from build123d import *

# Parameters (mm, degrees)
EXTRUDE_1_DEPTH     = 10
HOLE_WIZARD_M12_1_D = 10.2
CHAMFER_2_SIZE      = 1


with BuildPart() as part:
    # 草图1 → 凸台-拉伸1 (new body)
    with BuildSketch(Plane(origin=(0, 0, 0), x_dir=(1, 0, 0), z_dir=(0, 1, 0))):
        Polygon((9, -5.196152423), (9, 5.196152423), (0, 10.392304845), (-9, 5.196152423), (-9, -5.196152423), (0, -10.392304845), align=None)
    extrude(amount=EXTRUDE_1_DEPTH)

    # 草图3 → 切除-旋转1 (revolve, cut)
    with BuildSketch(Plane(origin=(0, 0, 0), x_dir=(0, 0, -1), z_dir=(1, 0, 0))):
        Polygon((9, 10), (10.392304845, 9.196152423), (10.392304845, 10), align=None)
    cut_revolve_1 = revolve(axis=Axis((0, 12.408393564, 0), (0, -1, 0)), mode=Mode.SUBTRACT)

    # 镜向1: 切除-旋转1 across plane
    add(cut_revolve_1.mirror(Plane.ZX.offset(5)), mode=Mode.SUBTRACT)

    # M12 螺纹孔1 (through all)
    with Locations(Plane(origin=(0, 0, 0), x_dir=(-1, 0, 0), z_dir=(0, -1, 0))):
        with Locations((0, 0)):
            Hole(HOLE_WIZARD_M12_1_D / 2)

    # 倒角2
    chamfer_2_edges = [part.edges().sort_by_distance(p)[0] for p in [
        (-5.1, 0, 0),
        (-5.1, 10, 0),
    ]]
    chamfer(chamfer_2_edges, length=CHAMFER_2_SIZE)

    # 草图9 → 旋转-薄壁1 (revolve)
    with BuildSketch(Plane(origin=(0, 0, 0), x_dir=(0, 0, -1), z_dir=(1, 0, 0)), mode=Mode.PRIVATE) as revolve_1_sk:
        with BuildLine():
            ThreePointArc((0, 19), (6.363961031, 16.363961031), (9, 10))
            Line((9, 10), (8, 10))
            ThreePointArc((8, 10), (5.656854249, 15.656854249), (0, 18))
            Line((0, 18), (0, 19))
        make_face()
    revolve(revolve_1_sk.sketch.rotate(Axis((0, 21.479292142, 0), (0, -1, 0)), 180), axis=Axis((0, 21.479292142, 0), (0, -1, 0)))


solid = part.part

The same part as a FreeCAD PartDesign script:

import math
import FreeCAD as App
import Part
import Sketcher

V = App.Vector
Q = App.Units.Quantity


def edges_at(feature, points):
    """Names of the edges that pass closest to the given points."""
    edges = feature.Shape.Edges
    near = lambda p: min(range(len(edges)), key=lambda i: edges[i].distToShape(Part.Vertex(*p))[0])
    return sorted({f"Edge{near(p) + 1}" for p in points})

doc = App.newDocument("Part")
body = doc.addObject("PartDesign::Body", "Body")

# Sketch on XZ plane
sketch1 = body.newObject("Sketcher::SketchObject", "Sketch")
sketch1.AttachmentSupport = (doc.getObject("XZ_Plane"), [""])
sketch1.MapMode = "FlatFace"
sketch1.addGeometry([
    Part.LineSegment(V(9, 5, 0), V(9, -5, 0)),  # 0
    Part.LineSegment(V(9, -5, 0), V(0, -10, 0)),  # 1
    Part.LineSegment(V(0, -10, 0), V(-9, -5, 0)),  # 2
    Part.LineSegment(V(-9, -5, 0), V(-9, 5, 0)),  # 3
    Part.LineSegment(V(-9, 5, 0), V(0, 10, 0)),  # 4
    Part.LineSegment(V(0, 10, 0), V(9, 5, 0)),  # 5
], False)
sketch1.addConstraint([
    Sketcher.Constraint("Coincident", 0, 2, 1, 1),
    Sketcher.Constraint("Coincident", 1, 2, 2, 1),
    Sketcher.Constraint("Coincident", 2, 2, 3, 1),
    Sketcher.Constraint("Coincident", 3, 2, 4, 1),
    Sketcher.Constraint("Coincident", 4, 2, 5, 1),
    Sketcher.Constraint("Coincident", 5, 2, 0, 1),
    Sketcher.Constraint("Vertical", 0),
    Sketcher.Constraint("Vertical", 3),
    Sketcher.Constraint("Symmetric", 0, 2, 3, 2, -1, 1),
    Sketcher.Constraint("Symmetric", 1, 2, 4, 2, -1, 1),
    Sketcher.Constraint("PointOnObject", 1, 2, -2),
    Sketcher.Constraint("Parallel", 2, 5),
    Sketcher.Constraint("Horizontal", 0, 2, 2, 2),
    Sketcher.Constraint("Angle", 1, Q("-150 deg")),
    Sketcher.Constraint("DistanceX", -1, 1, 0, 2, 9.0),
    Sketcher.Constraint("DistanceY", 0, 2, 0, 1, 10.392305),
])
pad1 = body.newObject("PartDesign::Pad", "Pad")
pad1.Profile = sketch1
pad1.Length = 10
pad1.Reversed = True

# Sketch on YZ plane
sketch2 = body.newObject("Sketcher::SketchObject", "Sketch001")
sketch2.AttachmentSupport = (doc.getObject("YZ_Plane"), [""])
sketch2.MapMode = "FlatFace"
sketch2.addGeometry([
    Part.LineSegment(V(10, -9, 0), V(9.2, -10.4, 0)),
    Part.LineSegment(V(9.2, -10.4, 0), V(10, -10.4, 0)),
    Part.LineSegment(V(10, -10.4, 0), V(10, -9, 0)),
], False)
sketch2.addConstraint([
    Sketcher.Constraint("Coincident", 0, 2, 1, 1),
    Sketcher.Constraint("Coincident", 1, 2, 2, 1),
    Sketcher.Constraint("Coincident", 2, 2, 0, 1),
    Sketcher.Constraint("Horizontal", 1),
    Sketcher.Constraint("Vertical", 2),
    Sketcher.Constraint("Angle", 0, Q("-120 deg")),
    Sketcher.Constraint("DistanceX", -1, 1, 1, 2, 10.0),
    Sketcher.Constraint("DistanceY", 2, 2, -1, 1, 9.0),
    Sketcher.Constraint("DistanceX", 1, 1, 1, 2, 0.803848),
])
groove = body.newObject("PartDesign::Groove", "Groove")
groove.Profile = sketch2
groove.ReferenceAxis = (sketch2, ["H_Axis"])
groove.Angle = 360
doc.recompute()

datumplane = body.newObject("PartDesign::Plane", "DatumPlane")
datumplane.AttachmentSupport = (doc.getObject("XZ_Plane"), [""])
datumplane.MapMode = "FlatFace"
datumplane.AttachmentOffset = App.Placement(V(0, 0, -5), App.Rotation())
mirrored = body.newObject("PartDesign::Mirrored", "Mirrored")
mirrored.Originals = [groove]
mirrored.MirrorPlane = (datumplane, [""])
body.Tip = mirrored

# Sketch on XZ plane
sketch3 = body.newObject("Sketcher::SketchObject", "Sketch002")
sketch3.AttachmentSupport = (doc.getObject("XZ_Plane"), [""])
sketch3.MapMode = "FlatFace"
sketch3.addGeometry(Part.Circle(V(0, 0, 0), V(0, 0, 1), 5), False)
sketch3.addConstraint([
    Sketcher.Constraint("Coincident", 0, 3, -1, 1),
    Sketcher.Constraint("Diameter", 0, 10.2),
])
doc.recompute()
hole = body.newObject("PartDesign::Hole", "Hole")
hole.Profile = sketch3
hole.ThreadType = "None"
hole.Diameter = 10.2
hole.DepthType = "ThroughAll"
doc.recompute()

chamfer = body.newObject("PartDesign::Chamfer", "Chamfer")
chamfer.Base = (hole, edges_at(hole, [(-5.1, 0, 0), (-5.1, 10, 0)]))
chamfer.Size = 1

# Sketch on YZ plane
sketch4 = body.newObject("Sketcher::SketchObject", "Sketch003")
sketch4.AttachmentSupport = (doc.getObject("YZ_Plane"), [""])
sketch4.MapMode = "FlatFace"
sketch4.addGeometry([
    Part.ArcOfCircle(Part.Circle(V(10, 0, 0), V(0, 0, 1), 9), math.radians(-90), math.radians(0)),
    Part.LineSegment(V(19, 0, 0), V(18, 0, 0)),
    Part.ArcOfCircle(Part.Circle(V(10, 0, 0), V(0, 0, 1), 8), math.radians(-90), math.radians(0)),
    Part.LineSegment(V(10, -8, 0), V(10, -9, 0)),
], False)
sketch4.addConstraint([
    Sketcher.Constraint("Coincident", 0, 2, 1, 1),
    Sketcher.Constraint("Coincident", 1, 2, 2, 2),
    Sketcher.Constraint("Coincident", 2, 1, 3, 1),
    Sketcher.Constraint("Coincident", 3, 2, 0, 1),
    Sketcher.Constraint("Horizontal", 1),
    Sketcher.Constraint("Vertical", 3),
    Sketcher.Constraint("Coincident", 2, 3, 0, 3),
    Sketcher.Constraint("PointOnObject", 0, 3, -1),
    Sketcher.Constraint("PointOnObject", 0, 2, -1),
    Sketcher.Constraint("Vertical", 0, 3, 2, 1),
    Sketcher.Constraint("Radius", 0, 9.0),
    Sketcher.Constraint("Radius", 2, 8.0),
    Sketcher.Constraint("DistanceX", -1, 1, 0, 3, 10.0),
])
revolution = body.newObject("PartDesign::Revolution", "Revolution")
revolution.Profile = sketch4
revolution.ReferenceAxis = (sketch4, ["H_Axis"])
revolution.Angle = 360

doc.recompute()
